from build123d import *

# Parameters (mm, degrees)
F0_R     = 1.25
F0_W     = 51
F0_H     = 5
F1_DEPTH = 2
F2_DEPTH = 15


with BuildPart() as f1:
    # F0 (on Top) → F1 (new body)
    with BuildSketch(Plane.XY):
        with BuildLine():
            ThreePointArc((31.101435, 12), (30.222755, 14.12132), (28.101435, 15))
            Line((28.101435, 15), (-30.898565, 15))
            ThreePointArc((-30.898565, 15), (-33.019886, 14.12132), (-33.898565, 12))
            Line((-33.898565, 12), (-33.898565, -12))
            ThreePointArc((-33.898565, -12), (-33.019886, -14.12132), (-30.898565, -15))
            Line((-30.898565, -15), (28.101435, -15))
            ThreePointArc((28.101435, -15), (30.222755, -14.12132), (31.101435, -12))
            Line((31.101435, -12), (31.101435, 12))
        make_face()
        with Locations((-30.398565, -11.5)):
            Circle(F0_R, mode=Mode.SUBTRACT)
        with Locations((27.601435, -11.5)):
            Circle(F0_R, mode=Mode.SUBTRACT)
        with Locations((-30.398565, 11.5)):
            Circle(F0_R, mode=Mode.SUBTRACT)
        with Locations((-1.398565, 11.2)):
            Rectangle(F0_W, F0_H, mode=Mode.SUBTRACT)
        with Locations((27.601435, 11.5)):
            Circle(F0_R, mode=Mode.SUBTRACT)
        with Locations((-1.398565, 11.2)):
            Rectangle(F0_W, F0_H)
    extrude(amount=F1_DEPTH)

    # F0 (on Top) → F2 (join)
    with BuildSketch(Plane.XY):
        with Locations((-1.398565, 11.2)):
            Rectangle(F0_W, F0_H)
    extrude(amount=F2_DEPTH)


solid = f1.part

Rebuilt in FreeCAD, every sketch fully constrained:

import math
import FreeCAD as App
import Part
import Sketcher

V = App.Vector


def add_polygon(sketch, points):
    """Adds a closed chain of lines whose ends are joined by coincident constraints."""
    first, n = sketch.GeometryCount, len(points)
    for a, b in zip(points, points[1:] + points[:1]):
        sketch.addGeometry(Part.LineSegment(App.Vector(*a, 0), App.Vector(*b, 0)), False)
    for i in range(n):
        sketch.addConstraint(Sketcher.Constraint("Coincident", first + i, 2, first + (i + 1) % n, 1))

doc = App.newDocument("Part")
body = doc.addObject("PartDesign::Body", "Body")

sketch1 = doc.addObject("Sketcher::SketchObject", "Sketch")
body.addObject(sketch1)
sketch1.AttachmentSupport = (doc.XY_Plane, [""])
sketch1.MapMode = "FlatFace"
sketch1.addGeometry([
    Part.ArcOfCircle(Part.Circle(V(28.101434, 11.999999, 0), V(0, 0, 1), 3.000001), math.radians(0.000022), math.radians(89.999978)),
    Part.LineSegment(V(28.101435, 15, 0), V(-30.898565, 15, 0)),
    Part.ArcOfCircle(Part.Circle(V(-30.898566, 12.000001, 0), V(0, 0, 1), 2.999999), math.radians(89.99999), math.radians(180.00001)),
    Part.LineSegment(V(-33.898565, 12, 0), V(-33.898565, -12, 0)),
    Part.ArcOfCircle(Part.Circle(V(-30.898566, -12.000001, 0), V(0, 0, 1), 2.999999), math.radians(179.99999), math.radians(270.00001)),
    Part.LineSegment(V(-30.898565, -15, 0), V(28.101435, -15, 0)),
    Part.ArcOfCircle(Part.Circle(V(28.101434, -11.999999, 0), V(0, 0, 1), 3.000001), math.radians(-89.999978), math.radians(-0.000022)),
    Part.LineSegment(V(31.101435, -12, 0), V(31.101435, 12, 0)),
    Part.Circle(V(-30.398565, -11.5, 0), V(0, 0, 1), 1.25),
    Part.Circle(V(27.601435, -11.5, 0), V(0, 0, 1), 1.25),
    Part.Circle(V(-30.398565, 11.5, 0), V(0, 0, 1), 1.25),
    Part.Circle(V(27.601435, 11.5, 0), V(0, 0, 1), 1.25),
], False)
sketch1.addConstraint([
    Sketcher.Constraint("Tangent", 0, 2, 1, 1),
    Sketcher.Constraint("Tangent", 1, 2, 2, 1),
    Sketcher.Constraint("Tangent", 2, 2, 3, 1),
    Sketcher.Constraint("Tangent", 3, 2, 4, 1),
    Sketcher.Constraint("Tangent", 4, 2, 5, 1),
    Sketcher.Constraint("Tangent", 5, 2, 6, 1),
    Sketcher.Constraint("Tangent", 6, 2, 7, 1),
    Sketcher.Constraint("Tangent", 7, 2, 0, 1),
    Sketcher.Constraint("Horizontal", 1),
    Sketcher.Constraint("Vertical", 3),
    Sketcher.Constraint("Horizontal", 5),
    Sketcher.Constraint("Vertical", 7),
    Sketcher.Constraint("Equal", 0, 2),
    Sketcher.Constraint("Equal", 2, 4),
    Sketcher.Constraint("Equal", 4, 6),
    Sketcher.Constraint("Equal", 8, 9),
    Sketcher.Constraint("Equal", 9, 10),
    Sketcher.Constraint("Equal", 10, 11),
    Sketcher.Constraint("Symmetric", 8, 3, 10, 3, -1),
    Sketcher.Constraint("Symmetric", 9, 3, 11, 3, -1),
    Sketcher.Constraint("Horizontal", 8, 3, 9, 3),
    Sketcher.Constraint("Radius", 0, 3.000001),
    Sketcher.Constraint("Diameter", 8, 2.5),
    Sketcher.Constraint("DistanceX", 1, 2, 1, 1, 59.0),
    Sketcher.Constraint("DistanceY", 3, 2, 3, 1, 24.0),
    Sketcher.Constraint("DistanceY", -1, 1, 0, 3, 11.999999),
    Sketcher.Constraint("DistanceX", 8, 3, 9, 3, 58.0),
    Sketcher.Constraint("DistanceY", 8, 3, 10, 3, 23.0),
    Sketcher.Constraint("DistanceX", 4, 3, 8, 3, 0.500001),
    Sketcher.Constraint("DistanceX", -1, 1, 0, 3, 28.101434),
])
pad1 = doc.addObject("PartDesign::Pad", "Pad")
body.addObject(pad1)
pad1.Profile = sketch1
pad1.Length = 2

sketch2 = doc.addObject("Sketcher::SketchObject", "Sketch001")
body.addObject(sketch2)
sketch2.AttachmentSupport = (doc.XY_Plane, [""])
sketch2.MapMode = "FlatFace"
add_polygon(sketch2, [(-26.898565, 13.7), (-26.898565, 8.7), (24.101435, 8.7), (24.101435, 13.7)])
sketch2.addConstraint([
    Sketcher.Constraint("Vertical", 0),
    Sketcher.Constraint("Horizontal", 1),
    Sketcher.Constraint("Vertical", 2),
    Sketcher.Constraint("Horizontal", 3),
    Sketcher.Constraint("DistanceX", 1, 1, 1, 2, 51.0),
    Sketcher.Constraint("DistanceY", 0, 2, 0, 1, 5.0),
    Sketcher.Constraint("DistanceY", -1, 1, 0, 2, 8.7),
    Sketcher.Constraint("DistanceX", 0, 2, -1, 1, 26.898565),
])
pad2 = doc.addObject("PartDesign::Pad", "Pad001")
body.addObject(pad2)
pad2.Profile = sketch2
pad2.Length = 15

doc.recompute()
